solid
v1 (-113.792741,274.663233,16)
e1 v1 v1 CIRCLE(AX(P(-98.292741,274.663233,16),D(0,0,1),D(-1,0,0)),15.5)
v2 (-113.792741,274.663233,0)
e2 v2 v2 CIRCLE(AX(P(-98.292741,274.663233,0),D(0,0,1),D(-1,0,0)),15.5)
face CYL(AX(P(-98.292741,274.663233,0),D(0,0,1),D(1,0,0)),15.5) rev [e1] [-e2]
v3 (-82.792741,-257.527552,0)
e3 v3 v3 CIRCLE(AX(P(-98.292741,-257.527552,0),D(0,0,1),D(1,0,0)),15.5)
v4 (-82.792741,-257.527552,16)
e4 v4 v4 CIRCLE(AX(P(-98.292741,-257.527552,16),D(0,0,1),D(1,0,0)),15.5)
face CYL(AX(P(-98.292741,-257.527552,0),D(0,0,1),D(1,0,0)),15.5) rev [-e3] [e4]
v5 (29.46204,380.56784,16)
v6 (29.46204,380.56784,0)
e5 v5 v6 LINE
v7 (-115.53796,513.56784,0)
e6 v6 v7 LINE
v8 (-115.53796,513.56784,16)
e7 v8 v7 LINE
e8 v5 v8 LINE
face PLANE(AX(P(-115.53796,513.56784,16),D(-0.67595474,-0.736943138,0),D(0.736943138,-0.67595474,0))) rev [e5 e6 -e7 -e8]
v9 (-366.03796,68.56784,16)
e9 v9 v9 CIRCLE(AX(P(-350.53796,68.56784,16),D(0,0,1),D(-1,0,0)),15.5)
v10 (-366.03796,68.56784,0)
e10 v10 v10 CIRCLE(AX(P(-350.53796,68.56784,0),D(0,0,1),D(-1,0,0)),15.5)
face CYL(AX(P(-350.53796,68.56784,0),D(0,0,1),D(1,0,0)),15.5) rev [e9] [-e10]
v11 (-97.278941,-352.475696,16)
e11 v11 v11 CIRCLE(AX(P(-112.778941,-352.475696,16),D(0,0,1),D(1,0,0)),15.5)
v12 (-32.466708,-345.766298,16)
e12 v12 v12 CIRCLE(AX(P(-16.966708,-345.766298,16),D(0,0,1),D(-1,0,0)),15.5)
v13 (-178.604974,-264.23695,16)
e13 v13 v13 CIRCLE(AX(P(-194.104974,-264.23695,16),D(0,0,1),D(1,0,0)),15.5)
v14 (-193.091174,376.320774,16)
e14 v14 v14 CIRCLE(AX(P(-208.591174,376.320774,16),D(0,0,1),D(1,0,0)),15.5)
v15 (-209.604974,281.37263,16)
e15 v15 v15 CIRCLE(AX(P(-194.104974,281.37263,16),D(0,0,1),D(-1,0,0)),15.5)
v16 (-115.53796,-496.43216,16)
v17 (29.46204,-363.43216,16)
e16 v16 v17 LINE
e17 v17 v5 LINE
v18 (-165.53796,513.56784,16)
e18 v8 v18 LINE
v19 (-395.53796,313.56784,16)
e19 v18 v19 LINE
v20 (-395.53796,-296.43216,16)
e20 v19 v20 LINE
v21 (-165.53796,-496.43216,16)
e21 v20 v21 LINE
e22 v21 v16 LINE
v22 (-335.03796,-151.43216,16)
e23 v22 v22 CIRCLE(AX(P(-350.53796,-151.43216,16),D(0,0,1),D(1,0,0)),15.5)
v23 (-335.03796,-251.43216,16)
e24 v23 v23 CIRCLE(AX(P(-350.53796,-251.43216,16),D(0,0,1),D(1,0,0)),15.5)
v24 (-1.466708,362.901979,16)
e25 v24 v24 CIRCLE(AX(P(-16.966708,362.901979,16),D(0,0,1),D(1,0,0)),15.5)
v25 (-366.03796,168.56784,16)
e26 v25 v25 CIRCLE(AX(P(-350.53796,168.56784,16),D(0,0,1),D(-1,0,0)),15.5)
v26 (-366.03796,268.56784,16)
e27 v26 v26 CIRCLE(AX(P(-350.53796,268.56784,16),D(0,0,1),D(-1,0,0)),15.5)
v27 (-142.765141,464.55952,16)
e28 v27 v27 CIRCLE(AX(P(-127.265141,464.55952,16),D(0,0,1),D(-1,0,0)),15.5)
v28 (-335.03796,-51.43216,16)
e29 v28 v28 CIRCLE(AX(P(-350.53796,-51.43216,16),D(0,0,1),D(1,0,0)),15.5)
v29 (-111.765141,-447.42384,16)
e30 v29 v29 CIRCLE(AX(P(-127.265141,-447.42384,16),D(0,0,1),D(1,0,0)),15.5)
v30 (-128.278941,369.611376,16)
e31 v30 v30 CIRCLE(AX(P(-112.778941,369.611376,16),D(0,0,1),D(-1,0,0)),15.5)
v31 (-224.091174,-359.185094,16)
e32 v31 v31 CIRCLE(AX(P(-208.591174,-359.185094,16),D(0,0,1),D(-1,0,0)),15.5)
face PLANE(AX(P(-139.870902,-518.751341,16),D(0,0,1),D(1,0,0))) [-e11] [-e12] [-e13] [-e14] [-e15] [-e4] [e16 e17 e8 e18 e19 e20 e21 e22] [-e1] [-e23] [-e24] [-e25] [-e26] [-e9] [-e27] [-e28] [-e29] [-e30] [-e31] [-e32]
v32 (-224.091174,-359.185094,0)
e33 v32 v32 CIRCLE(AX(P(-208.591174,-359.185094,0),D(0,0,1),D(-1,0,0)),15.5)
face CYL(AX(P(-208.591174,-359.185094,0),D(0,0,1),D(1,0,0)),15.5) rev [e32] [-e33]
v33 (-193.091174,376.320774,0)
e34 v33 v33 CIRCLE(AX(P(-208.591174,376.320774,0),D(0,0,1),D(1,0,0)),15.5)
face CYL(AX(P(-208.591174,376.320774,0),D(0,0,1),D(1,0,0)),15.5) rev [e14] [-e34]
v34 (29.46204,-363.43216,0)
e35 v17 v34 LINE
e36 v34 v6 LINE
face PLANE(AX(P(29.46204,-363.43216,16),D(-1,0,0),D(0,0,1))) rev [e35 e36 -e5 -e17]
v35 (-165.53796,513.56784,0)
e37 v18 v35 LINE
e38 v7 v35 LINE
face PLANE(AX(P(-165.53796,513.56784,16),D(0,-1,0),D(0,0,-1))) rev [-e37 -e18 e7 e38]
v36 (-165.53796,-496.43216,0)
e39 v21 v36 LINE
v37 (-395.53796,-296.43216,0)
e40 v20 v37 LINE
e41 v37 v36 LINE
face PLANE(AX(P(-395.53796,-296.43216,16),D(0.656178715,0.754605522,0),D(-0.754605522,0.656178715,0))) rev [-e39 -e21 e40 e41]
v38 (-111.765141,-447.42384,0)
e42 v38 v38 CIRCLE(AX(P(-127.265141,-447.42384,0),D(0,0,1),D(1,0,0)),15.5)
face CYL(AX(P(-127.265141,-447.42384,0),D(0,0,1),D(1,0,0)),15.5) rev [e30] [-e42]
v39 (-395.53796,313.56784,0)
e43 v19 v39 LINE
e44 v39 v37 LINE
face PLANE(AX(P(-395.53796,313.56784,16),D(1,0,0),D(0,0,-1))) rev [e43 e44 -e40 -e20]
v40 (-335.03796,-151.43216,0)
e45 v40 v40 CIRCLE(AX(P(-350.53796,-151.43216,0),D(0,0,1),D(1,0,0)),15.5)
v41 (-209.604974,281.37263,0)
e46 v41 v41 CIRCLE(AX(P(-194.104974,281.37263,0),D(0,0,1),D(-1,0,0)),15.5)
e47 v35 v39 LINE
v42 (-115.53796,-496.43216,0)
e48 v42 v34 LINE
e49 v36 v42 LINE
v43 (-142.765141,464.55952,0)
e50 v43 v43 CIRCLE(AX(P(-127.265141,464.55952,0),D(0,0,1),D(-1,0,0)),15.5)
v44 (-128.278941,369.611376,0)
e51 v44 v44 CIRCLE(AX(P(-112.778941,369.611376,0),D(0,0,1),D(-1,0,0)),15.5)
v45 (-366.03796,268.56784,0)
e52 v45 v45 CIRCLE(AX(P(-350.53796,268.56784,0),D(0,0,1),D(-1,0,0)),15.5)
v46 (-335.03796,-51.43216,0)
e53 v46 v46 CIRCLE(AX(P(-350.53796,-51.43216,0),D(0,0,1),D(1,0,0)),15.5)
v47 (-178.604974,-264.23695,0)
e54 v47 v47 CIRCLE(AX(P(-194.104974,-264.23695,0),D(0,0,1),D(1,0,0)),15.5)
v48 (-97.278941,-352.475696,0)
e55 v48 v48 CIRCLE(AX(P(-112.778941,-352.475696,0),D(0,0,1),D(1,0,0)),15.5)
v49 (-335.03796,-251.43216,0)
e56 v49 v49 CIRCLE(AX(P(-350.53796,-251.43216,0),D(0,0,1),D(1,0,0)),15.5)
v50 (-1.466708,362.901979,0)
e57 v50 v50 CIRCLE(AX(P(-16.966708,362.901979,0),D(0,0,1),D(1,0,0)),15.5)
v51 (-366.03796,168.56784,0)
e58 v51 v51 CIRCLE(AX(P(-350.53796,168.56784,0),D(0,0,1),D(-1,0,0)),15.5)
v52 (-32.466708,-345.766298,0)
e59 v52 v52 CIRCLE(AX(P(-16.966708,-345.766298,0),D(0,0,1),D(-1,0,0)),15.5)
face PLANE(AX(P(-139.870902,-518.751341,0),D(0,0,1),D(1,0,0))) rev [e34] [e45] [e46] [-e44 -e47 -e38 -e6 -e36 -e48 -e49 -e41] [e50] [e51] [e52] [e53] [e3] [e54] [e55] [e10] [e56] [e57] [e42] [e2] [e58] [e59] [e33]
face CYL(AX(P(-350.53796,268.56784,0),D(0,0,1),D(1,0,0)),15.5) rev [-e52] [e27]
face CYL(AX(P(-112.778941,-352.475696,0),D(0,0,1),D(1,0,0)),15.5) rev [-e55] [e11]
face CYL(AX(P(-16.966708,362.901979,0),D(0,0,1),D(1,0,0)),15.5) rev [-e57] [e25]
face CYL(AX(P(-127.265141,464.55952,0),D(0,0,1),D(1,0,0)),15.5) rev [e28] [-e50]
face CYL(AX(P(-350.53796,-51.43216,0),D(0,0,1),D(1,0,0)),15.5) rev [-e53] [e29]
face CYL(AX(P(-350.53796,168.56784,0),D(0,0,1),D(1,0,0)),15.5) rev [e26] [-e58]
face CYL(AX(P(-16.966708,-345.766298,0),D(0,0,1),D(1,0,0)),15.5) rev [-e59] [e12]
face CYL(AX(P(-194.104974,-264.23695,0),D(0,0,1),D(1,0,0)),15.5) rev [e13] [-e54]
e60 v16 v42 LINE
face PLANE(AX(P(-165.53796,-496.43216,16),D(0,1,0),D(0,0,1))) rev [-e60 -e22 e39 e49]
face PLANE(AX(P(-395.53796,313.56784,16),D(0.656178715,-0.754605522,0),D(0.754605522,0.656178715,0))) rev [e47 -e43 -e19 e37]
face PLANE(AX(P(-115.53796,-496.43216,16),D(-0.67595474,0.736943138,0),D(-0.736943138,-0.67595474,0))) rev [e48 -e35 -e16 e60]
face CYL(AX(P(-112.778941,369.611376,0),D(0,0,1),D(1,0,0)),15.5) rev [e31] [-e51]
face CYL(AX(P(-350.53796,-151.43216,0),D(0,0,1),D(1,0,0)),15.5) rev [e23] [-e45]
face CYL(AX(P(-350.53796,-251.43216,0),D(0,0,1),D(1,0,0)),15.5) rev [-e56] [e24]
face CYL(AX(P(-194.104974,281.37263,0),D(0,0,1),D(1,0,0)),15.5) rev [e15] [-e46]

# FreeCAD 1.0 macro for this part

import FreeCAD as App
import Part
import Sketcher
from FreeCAD import Vector

doc = App.newDocument("Part")
body = doc.addObject("PartDesign::Body", "Body")

# Sketch on XY plane
sketch1 = body.newObject("Sketcher::SketchObject", "Sketch")
sketch1.AttachmentSupport = (doc.getObject("XY_Plane"), [""])
sketch1.MapMode = "FlatFace"
sketch1.addGeometry([
    Part.LineSegment(Vector(-396, 314, 0), Vector(-396, -296, 0)),  # 0
    Part.LineSegment(Vector(-396, -296, 0), Vector(-166, -496, 0)),  # 1
    Part.LineSegment(Vector(-166, -496, 0), Vector(-116, -496, 0)),  # 2
    Part.LineSegment(Vector(-116, -496, 0), Vector(29, -363, 0)),  # 3
    Part.LineSegment(Vector(29, -363, 0), Vector(29, 381, 0)),  # 4
    Part.LineSegment(Vector(29, 381, 0), Vector(-116, 514, 0)),  # 5
    Part.LineSegment(Vector(-116, 514, 0), Vector(-166, 514, 0)),  # 6
    Part.LineSegment(Vector(-166, 514, 0), Vector(-396, 314, 0)),  # 7
], False)
sketch1.addConstraint([
    Sketcher.Constraint("Coincident", 0, 2, 1, 1),
    Sketcher.Constraint("Coincident", 1, 2, 2, 1),
    Sketcher.Constraint("Coincident", 2, 2, 3, 1),
    Sketcher.Constraint("Coincident", 3, 2, 4, 1),
    Sketcher.Constraint("Coincident", 4, 2, 5, 1),
    Sketcher.Constraint("Coincident", 5, 2, 6, 1),
    Sketcher.Constraint("Coincident", 6, 2, 7, 1),
    Sketcher.Constraint("Coincident", 7, 2, 0, 1),
    Sketcher.Constraint("Vertical", 0),
    Sketcher.Constraint("Horizontal", 2),
    Sketcher.Constraint("Vertical", 4),
    Sketcher.Constraint("Horizontal", 6),
    Sketcher.Constraint("Vertical", 2, 2, 5, 2),
    Sketcher.Constraint("Vertical", 1, 2, 6, 2),
    Sketcher.Constraint("Equal", 3, 5),
    Sketcher.Constraint("Equal", 1, 7),
    Sketcher.Constraint("DistanceX", 2, 1, 2, 2, 50.0),
    Sketcher.Constraint("DistanceY", 0, 2, 0, 1, 610.0),
    Sketcher.Constraint("DistanceY", 4, 1, 4, 2, 744.0),
    Sketcher.Constraint("DistanceX", 0, 2, 1, 2, 230.0),
    Sketcher.Constraint("DistanceY", 1, 2, 0, 2, 200.0),
    Sketcher.Constraint("DistanceX", 2, 2, 3, 2, 145.0),
    Sketcher.Constraint("DistanceX", 0, 2, -1, 1, 395.53796),
    Sketcher.Constraint("DistanceY", 0, 2, -1, 1, 296.43216),
])
pad1 = body.newObject("PartDesign::Pad", "Pad")
pad1.Profile = sketch1
pad1.Length = 16

# Sketch on XY plane
sketch2 = body.newObject("Sketcher::SketchObject", "Sketch001")
sketch2.AttachmentSupport = (doc.getObject("XY_Plane"), [""])
sketch2.MapMode = "FlatFace"
sketch2.AttachmentOffset = App.Placement(Vector(0, 0, 16), App.Rotation())
sketch2.addGeometry([
    Part.Circle(Vector(-351, -51, 0), Vector(0, 0, 1), 16),  # 0
    Part.Circle(Vector(-351, -251, 0), Vector(0, 0, 1), 16),  # 1
    Part.Circle(Vector(-351, -151, 0), Vector(0, 0, 1), 16),  # 2
    Part.Circle(Vector(-194, -264, 0), Vector(0, 0, 1), 16),  # 3
    Part.Circle(Vector(-113, -352, 0), Vector(0, 0, 1), 16),  # 4
    Part.Circle(Vector(-98, -258, 0), Vector(0, 0, 1), 16),  # 5
    Part.Circle(Vector(-209, -359, 0), Vector(0, 0, 1), 16),  # 6
    Part.Circle(Vector(-127, -447, 0), Vector(0, 0, 1), 16),  # 7
    Part.Circle(Vector(-17, -346, 0), Vector(0, 0, 1), 16),  # 8
    Part.Circle(Vector(-17, 363, 0), Vector(0, 0, 1), 16),  # 9
    Part.Circle(Vector(-127, 465, 0), Vector(0, 0, 1), 16),  # 10
    Part.Circle(Vector(-209, 376, 0), Vector(0, 0, 1), 16),  # 11
    Part.Circle(Vector(-98, 275, 0), Vector(0, 0, 1), 16),  # 12
    Part.Circle(Vector(-113, 370, 0), Vector(0, 0, 1), 16),  # 13
    Part.Circle(Vector(-194, 281, 0), Vector(0, 0, 1), 16),  # 14
    Part.Circle(Vector(-351, 169, 0), Vector(0, 0, 1), 16),  # 15
    Part.Circle(Vector(-351, 269, 0), Vector(0, 0, 1), 16),  # 16
    Part.Circle(Vector(-351, 69, 0), Vector(0, 0, 1), 16),  # 17
], False)
sketch2.addConstraint([
    Sketcher.Constraint("Equal", 0, 1),
    Sketcher.Constraint("Equal", 1, 2),
    Sketcher.Constraint("Equal", 2, 3),
    Sketcher.Constraint("Equal", 3, 4),
    Sketcher.Constraint("Equal", 4, 5),
    Sketcher.Constraint("Equal", 5, 6),
    Sketcher.Constraint("Equal", 6, 7),
    Sketcher.Constraint("Equal", 7, 8),
    Sketcher.Constraint("Equal", 8, 9),
    Sketcher.Constraint("Equal", 9, 10),
    Sketcher.Constraint("Equal", 10, 11),
    Sketcher.Constraint("Equal", 11, 12),
    Sketcher.Constraint("Equal", 12, 13),
    Sketcher.Constraint("Equal", 13, 14),
    Sketcher.Constraint("Equal", 14, 15),
    Sketcher.Constraint("Equal", 15, 16),
    Sketcher.Constraint("Equal", 16, 17),
    Sketcher.Constraint("Vertical", 0, 3, 1, 3),
    Sketcher.Constraint("Vertical", 1, 3, 2, 3),
    Sketcher.Constraint("Vertical", 8, 3, 9, 3),
    Sketcher.Constraint("Vertical", 7, 3, 10, 3),
    Sketcher.Constraint("Vertical", 6, 3, 11, 3),
    Sketcher.Constraint("Vertical", 5, 3, 12, 3),
    Sketcher.Constraint("Vertical", 4, 3, 13, 3),
    Sketcher.Constraint("Vertical", 3, 3, 14, 3),
    Sketcher.Constraint("Vertical", 2, 3, 15, 3),
    Sketcher.Constraint("Vertical", 15, 3, 16, 3),
    Sketcher.Constraint("Vertical", 16, 3, 17, 3),
    Sketcher.Constraint("Diameter", 0, 31.0),
    Sketcher.Constraint("DistanceY", 1, 3, 0, 3, 200.0),
    Sketcher.Constraint("DistanceY", 2, 3, 0, 3, 100.0),
    Sketcher.Constraint("DistanceY", 0, 3, 15, 3, 220.0),
    Sketcher.Constraint("DistanceY", 15, 3, 16, 3, 100.0),
    Sketcher.Constraint("DistanceY", 17, 3, 15, 3, 100.0),
    Sketcher.Constraint("DistanceY", 8, 3, -1, 1, 345.766298),
    Sketcher.Constraint("DistanceX", 4, 3, 5, 3, 14.4862),
    Sketcher.Constraint("DistanceX", 6, 3, 3, 3, 14.4862),
    Sketcher.Constraint("DistanceX", 7, 3, 4, 3, 14.4862),
    Sketcher.Constraint("DistanceX", 0, 3, -1, 1, 350.53796),
    Sketcher.Constraint("DistanceY", 0, 3, -1, 1, 51.43216),
    Sketcher.Constraint("DistanceY", 3, 3, -1, 1, 264.23695),
    Sketcher.Constraint("DistanceX", 4, 3, -1, 1, 112.778941),
    Sketcher.Constraint("DistanceY", 5, 3, -1, 1, 257.527552),
    Sketcher.Constraint("DistanceY", 7, 3, -1, 1, 447.42384),
    Sketcher.Constraint("DistanceY", -1, 1, 9, 3, 362.901979),
    Sketcher.Constraint("DistanceY", -1, 1, 10, 3, 464.55952),
    Sketcher.Constraint("DistanceY", -1, 1, 14, 3, 281.37263),
    Sketcher.Constraint("DistanceY", 6, 3, 5, 3, 101.657542),
    Sketcher.Constraint("DistanceY", 12, 3, 11, 3, 101.657542),
    Sketcher.Constraint("DistanceX", 3, 3, -1, 1, 194.104974),
    Sketcher.Constraint("DistanceY", 4, 3, -1, 1, 352.475696),
    Sketcher.Constraint("DistanceX", 8, 3, -1, 1, 16.966708),
    Sketcher.Constraint("DistanceY", -1, 1, 11, 3, 376.320774),
    Sketcher.Constraint("DistanceY", -1, 1, 13, 3, 369.611376),
])
pocket1 = body.newObject("PartDesign::Pocket", "Pocket")
pocket1.Profile = sketch2
pocket1.Type = "ThroughAll"

doc.recompute()
